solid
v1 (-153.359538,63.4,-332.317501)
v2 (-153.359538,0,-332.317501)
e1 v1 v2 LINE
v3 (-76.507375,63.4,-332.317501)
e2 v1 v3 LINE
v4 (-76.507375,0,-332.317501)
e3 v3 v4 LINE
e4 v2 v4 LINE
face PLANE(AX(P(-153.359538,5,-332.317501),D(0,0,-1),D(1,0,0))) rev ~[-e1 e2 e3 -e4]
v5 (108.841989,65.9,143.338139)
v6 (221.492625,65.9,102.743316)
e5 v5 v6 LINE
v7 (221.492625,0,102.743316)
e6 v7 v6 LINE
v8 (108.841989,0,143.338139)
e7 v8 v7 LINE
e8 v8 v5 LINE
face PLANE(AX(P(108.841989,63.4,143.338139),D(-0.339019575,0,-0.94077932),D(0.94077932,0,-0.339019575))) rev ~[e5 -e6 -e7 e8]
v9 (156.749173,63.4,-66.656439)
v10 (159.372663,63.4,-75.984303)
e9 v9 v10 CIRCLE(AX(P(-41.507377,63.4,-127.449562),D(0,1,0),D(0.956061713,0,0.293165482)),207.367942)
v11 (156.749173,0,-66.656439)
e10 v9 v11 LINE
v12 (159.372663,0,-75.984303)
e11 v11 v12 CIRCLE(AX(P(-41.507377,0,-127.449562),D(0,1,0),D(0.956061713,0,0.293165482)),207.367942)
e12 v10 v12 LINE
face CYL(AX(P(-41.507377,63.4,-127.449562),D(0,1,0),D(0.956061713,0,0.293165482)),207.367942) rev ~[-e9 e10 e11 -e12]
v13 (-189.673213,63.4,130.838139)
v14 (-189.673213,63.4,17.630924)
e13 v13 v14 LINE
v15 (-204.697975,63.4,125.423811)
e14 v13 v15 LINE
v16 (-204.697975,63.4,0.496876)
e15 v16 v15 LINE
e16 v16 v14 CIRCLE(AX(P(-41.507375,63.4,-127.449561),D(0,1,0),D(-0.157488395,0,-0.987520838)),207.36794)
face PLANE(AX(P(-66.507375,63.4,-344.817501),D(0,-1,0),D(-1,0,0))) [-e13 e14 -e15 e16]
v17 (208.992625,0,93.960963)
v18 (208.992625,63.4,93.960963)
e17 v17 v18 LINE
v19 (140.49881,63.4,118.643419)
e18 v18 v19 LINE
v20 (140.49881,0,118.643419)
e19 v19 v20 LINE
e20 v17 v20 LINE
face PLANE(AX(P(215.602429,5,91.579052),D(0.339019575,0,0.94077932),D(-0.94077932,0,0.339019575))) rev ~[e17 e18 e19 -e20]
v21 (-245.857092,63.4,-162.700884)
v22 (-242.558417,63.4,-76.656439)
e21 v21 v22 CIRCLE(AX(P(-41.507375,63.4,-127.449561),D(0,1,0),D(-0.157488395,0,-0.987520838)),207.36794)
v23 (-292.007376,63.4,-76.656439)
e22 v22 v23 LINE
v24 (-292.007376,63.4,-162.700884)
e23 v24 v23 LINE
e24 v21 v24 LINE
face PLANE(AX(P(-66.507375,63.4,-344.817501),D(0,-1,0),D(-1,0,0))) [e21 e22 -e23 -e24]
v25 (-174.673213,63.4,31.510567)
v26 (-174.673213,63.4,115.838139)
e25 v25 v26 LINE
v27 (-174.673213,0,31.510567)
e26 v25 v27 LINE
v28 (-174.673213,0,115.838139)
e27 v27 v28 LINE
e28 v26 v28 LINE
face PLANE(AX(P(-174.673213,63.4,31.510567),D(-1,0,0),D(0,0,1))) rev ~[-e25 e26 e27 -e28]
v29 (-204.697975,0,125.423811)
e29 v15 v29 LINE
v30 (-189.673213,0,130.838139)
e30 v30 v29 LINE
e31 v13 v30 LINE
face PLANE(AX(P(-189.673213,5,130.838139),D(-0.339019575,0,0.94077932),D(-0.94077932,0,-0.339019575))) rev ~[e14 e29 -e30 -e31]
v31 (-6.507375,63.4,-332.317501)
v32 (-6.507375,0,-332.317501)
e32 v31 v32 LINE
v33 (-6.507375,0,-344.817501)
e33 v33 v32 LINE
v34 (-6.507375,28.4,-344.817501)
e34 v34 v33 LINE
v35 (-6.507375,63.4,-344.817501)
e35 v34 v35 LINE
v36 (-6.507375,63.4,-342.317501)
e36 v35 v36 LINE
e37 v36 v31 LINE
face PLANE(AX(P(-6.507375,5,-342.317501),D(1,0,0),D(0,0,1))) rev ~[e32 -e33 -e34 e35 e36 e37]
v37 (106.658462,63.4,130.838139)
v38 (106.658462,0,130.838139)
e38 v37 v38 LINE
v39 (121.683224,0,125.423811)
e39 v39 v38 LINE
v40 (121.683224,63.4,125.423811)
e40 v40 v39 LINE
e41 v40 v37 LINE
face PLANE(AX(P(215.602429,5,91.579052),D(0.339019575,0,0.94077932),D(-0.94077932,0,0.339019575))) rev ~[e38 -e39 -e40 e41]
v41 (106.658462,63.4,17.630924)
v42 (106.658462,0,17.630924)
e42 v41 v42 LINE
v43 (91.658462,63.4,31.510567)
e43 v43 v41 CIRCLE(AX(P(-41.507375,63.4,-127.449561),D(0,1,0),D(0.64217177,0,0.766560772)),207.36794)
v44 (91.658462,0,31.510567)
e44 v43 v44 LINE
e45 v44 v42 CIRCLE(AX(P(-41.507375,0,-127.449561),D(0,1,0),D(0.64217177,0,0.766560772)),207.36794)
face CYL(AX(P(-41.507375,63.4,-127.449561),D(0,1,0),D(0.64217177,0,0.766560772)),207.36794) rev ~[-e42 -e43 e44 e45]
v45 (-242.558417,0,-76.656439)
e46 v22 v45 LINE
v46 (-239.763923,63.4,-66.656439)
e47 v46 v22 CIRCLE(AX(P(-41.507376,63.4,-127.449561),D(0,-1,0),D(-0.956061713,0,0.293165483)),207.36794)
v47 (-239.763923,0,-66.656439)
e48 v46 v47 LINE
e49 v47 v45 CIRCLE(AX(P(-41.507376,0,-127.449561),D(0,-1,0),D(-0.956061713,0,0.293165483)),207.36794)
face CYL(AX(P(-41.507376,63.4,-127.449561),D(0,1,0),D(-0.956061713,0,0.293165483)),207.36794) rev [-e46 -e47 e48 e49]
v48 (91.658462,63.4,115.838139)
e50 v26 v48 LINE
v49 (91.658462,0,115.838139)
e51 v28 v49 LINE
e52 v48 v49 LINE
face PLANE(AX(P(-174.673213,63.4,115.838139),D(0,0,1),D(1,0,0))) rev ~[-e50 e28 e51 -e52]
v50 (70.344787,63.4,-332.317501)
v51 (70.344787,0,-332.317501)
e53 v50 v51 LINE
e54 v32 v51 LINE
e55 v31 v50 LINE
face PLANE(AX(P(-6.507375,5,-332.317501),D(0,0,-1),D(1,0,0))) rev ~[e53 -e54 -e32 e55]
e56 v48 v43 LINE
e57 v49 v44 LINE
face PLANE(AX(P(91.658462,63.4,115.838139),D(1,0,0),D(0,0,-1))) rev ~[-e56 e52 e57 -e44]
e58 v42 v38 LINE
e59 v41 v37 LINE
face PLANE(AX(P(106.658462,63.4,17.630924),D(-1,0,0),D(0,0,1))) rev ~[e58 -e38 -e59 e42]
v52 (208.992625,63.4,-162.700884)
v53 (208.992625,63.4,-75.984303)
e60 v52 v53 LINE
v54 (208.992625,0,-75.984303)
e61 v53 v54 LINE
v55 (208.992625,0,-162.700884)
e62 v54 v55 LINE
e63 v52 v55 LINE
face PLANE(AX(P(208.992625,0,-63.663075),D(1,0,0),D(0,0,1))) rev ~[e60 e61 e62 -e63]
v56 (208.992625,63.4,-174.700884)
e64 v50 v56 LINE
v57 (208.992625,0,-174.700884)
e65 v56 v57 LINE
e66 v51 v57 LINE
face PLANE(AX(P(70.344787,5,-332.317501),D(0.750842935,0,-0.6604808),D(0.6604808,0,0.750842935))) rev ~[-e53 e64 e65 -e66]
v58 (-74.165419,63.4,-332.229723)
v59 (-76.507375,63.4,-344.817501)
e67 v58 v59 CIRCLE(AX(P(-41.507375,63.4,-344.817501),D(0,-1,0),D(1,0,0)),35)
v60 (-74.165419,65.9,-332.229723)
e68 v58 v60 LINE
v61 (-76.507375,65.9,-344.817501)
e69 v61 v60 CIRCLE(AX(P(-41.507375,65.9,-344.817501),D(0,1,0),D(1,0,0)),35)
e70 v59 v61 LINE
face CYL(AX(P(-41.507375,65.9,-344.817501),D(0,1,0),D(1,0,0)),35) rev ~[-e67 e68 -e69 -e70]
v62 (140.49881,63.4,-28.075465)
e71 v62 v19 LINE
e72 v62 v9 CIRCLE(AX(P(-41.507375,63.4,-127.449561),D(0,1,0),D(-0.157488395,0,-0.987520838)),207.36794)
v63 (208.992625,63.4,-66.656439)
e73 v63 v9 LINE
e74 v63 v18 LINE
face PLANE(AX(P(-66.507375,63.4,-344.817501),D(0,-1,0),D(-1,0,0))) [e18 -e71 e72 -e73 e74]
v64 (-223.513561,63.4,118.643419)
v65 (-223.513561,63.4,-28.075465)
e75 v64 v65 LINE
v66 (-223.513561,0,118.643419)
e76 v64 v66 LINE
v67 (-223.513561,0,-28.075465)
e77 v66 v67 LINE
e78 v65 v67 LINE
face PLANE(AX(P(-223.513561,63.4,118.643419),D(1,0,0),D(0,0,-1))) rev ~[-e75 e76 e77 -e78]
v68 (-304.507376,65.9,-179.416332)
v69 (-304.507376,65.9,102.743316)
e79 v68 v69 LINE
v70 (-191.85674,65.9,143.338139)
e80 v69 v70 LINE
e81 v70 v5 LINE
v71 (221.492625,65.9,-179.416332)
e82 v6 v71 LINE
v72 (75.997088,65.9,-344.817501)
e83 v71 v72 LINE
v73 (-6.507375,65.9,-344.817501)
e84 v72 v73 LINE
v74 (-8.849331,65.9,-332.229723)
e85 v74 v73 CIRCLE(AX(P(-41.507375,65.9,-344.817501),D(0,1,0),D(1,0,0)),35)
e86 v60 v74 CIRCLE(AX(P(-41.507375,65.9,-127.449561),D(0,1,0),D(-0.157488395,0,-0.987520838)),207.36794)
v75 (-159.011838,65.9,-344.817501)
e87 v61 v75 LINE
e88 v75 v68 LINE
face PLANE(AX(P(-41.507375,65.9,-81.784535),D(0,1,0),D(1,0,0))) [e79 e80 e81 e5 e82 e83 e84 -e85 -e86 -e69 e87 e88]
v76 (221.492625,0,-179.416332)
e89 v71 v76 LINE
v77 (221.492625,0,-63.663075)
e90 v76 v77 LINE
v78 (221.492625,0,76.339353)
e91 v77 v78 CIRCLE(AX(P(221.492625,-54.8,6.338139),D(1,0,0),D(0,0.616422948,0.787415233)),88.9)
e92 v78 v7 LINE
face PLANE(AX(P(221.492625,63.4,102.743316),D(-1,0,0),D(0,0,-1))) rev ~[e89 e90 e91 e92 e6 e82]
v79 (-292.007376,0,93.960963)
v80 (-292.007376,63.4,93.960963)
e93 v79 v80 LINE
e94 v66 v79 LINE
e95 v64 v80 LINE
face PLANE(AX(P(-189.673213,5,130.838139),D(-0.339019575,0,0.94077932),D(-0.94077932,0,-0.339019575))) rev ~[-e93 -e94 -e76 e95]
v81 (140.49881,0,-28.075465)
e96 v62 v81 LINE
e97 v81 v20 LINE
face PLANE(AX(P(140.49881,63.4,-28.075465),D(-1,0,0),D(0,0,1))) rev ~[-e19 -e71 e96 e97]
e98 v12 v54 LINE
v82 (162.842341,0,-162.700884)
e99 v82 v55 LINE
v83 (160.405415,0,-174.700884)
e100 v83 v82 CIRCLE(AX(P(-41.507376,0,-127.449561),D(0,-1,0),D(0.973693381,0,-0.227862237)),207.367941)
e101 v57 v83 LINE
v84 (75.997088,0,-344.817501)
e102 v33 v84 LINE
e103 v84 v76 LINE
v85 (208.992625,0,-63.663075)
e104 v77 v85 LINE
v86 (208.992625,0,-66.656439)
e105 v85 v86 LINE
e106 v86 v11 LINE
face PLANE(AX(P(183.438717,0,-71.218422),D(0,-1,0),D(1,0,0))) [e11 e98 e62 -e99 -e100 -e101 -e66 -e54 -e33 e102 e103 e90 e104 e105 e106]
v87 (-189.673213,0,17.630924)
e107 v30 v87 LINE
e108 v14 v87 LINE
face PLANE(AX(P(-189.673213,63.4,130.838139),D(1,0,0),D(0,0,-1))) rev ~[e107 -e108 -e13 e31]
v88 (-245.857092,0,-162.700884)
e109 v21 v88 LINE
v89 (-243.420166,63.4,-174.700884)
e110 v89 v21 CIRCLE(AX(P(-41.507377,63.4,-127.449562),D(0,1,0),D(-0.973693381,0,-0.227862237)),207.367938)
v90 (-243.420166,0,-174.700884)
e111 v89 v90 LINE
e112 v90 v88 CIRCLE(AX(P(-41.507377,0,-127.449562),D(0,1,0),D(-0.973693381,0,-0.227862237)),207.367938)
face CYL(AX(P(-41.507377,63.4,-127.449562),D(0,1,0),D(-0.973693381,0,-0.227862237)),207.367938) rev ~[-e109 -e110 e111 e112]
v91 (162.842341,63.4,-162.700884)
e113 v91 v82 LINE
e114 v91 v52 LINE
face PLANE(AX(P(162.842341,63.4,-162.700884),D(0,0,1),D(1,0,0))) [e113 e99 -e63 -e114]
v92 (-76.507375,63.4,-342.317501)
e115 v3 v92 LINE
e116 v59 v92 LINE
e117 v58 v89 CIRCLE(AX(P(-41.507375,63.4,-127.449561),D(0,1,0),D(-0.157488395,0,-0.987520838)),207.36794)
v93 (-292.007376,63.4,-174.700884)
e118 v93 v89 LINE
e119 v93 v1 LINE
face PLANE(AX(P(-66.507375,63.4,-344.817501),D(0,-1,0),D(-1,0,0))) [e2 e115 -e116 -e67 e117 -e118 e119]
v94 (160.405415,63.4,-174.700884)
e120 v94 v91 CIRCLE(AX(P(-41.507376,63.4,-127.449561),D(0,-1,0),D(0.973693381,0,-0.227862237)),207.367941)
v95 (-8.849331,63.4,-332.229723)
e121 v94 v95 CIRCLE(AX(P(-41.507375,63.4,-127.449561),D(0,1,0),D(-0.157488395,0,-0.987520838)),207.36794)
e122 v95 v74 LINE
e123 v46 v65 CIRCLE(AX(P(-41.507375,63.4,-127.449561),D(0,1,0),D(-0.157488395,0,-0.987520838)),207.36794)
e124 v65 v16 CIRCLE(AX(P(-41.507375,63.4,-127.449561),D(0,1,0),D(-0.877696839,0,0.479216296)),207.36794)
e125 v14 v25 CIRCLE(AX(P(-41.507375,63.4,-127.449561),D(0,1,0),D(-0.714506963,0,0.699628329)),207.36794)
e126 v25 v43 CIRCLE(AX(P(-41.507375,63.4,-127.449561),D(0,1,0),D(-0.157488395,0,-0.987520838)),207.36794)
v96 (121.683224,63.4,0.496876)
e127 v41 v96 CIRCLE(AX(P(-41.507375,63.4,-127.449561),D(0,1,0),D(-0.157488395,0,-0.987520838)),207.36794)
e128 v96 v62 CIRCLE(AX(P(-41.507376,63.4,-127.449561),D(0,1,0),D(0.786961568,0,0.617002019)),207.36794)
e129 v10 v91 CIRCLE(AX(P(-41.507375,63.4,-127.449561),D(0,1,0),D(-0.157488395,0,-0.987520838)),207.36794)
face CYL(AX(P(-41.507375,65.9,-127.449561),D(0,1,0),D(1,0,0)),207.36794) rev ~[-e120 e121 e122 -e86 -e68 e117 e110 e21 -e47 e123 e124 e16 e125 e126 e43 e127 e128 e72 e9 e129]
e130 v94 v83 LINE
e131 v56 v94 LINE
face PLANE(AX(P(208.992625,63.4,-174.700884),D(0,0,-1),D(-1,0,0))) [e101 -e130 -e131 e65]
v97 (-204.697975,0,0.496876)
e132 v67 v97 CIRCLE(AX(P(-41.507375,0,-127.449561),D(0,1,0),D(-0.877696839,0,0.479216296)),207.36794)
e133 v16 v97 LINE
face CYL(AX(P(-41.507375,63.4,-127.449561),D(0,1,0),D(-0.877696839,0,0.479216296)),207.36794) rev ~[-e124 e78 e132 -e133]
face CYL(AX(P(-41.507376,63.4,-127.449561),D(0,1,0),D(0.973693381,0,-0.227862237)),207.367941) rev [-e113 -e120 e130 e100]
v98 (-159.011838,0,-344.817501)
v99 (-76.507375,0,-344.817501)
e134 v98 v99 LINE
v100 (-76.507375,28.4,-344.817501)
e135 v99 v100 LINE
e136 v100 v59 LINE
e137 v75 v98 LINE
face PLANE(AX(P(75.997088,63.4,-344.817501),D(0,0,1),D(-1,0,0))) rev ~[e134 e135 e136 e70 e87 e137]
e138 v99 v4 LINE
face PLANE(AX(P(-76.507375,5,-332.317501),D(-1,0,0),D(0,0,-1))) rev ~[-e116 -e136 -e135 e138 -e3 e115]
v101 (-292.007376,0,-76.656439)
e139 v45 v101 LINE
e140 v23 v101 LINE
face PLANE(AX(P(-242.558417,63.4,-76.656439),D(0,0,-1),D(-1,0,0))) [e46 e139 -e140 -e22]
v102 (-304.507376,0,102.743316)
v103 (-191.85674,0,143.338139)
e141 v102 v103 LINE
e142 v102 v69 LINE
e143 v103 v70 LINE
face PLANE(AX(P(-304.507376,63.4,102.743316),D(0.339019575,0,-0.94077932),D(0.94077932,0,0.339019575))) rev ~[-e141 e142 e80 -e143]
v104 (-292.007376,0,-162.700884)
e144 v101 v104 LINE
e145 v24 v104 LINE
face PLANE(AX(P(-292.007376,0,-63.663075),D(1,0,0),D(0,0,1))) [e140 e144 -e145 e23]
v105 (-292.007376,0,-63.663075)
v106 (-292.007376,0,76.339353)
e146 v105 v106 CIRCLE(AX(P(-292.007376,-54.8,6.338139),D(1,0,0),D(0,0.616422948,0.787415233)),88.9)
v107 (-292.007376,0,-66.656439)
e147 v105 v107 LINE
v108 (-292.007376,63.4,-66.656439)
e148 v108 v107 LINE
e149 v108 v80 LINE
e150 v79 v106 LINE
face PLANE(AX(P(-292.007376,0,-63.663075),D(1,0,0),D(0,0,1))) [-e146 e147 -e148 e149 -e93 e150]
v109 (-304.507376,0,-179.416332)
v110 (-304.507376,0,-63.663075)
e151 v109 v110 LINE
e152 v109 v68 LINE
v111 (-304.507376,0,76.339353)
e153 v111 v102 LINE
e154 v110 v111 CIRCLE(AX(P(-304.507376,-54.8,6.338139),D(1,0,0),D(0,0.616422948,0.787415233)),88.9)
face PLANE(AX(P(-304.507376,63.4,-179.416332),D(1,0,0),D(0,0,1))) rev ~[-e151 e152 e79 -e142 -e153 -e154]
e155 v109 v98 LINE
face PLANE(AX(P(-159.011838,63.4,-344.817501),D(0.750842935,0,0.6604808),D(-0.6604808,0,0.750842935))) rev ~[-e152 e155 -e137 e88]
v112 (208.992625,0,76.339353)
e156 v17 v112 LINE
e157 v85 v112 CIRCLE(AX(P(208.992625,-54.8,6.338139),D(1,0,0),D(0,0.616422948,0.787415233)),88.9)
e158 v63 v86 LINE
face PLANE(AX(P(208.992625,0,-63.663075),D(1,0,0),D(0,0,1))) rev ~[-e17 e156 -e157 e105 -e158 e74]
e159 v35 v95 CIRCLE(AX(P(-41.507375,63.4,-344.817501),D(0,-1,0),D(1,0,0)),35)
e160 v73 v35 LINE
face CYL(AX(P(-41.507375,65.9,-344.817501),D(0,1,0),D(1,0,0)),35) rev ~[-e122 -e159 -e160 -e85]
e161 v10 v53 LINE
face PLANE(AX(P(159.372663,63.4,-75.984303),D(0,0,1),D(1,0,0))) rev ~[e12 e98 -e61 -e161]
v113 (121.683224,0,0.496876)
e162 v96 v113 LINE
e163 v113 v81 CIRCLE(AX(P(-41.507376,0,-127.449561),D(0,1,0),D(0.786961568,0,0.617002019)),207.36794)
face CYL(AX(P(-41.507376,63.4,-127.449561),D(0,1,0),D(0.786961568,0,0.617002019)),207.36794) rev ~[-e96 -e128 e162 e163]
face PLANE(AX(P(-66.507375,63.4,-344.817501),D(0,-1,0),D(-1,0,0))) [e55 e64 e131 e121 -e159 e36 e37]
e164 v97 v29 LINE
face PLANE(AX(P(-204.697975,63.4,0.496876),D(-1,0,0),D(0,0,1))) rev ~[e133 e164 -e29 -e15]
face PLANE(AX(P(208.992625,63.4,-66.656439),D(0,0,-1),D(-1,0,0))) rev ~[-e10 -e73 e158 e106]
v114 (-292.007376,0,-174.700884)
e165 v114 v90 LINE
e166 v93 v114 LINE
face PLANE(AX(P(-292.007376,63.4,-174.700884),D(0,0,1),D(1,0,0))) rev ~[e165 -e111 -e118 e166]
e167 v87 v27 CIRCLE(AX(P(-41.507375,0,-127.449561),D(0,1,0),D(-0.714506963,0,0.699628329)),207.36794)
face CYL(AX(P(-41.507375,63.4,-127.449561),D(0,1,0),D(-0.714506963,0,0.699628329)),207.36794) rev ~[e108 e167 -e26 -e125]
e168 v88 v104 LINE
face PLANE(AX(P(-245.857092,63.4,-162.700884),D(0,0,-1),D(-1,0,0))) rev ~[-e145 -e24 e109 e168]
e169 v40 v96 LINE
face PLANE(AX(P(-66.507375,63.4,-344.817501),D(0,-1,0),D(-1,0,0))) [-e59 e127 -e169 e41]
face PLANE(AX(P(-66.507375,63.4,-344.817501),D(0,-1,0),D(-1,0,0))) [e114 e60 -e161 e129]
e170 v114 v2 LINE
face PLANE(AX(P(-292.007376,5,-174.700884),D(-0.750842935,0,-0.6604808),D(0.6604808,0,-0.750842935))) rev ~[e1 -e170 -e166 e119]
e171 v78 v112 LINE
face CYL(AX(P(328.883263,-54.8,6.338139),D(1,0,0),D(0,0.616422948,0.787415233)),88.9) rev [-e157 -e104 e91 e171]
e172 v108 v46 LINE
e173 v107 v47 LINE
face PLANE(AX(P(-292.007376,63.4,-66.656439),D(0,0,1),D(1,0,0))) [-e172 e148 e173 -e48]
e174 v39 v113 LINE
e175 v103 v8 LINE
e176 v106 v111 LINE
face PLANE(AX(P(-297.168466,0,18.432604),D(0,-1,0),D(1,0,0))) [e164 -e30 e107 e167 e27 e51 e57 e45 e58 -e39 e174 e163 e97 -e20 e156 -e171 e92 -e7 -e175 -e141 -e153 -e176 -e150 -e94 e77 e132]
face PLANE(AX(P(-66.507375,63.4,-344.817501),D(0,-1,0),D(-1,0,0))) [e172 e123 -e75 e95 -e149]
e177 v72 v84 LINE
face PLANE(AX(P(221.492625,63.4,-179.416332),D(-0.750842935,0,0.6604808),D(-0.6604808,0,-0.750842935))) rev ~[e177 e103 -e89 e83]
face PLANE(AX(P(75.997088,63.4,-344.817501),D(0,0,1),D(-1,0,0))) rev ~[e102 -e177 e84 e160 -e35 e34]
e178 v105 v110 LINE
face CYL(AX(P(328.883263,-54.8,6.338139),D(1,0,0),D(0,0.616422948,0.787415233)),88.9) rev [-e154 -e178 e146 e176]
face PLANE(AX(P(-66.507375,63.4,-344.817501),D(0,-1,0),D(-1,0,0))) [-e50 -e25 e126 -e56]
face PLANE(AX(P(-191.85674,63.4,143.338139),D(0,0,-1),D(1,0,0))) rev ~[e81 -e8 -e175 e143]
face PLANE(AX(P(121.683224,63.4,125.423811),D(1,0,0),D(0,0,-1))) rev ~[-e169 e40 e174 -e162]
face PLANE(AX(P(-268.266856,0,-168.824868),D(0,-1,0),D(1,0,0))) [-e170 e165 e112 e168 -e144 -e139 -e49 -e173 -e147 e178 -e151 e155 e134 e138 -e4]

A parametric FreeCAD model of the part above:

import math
import FreeCAD as App
import Part
import Sketcher


def add_polygon(sketch, points):
    """Adds a closed chain of lines whose ends are joined by coincident constraints."""
    first, n = sketch.GeometryCount, len(points)
    for a, b in zip(points, points[1:] + points[:1]):
        sketch.addGeometry(Part.LineSegment(App.Vector(*a, 0), App.Vector(*b, 0)), False)
    for i in range(n):
        sketch.addConstraint(Sketcher.Constraint("Coincident", first + i, 2, first + (i + 1) % n, 1))

doc = App.newDocument("Part")
body = doc.addObject("PartDesign::Body", "Body")

sketch1 = body.newObject("Sketcher::SketchObject", "Sketch")
sketch1.AttachmentSupport = (doc.getObject("XZ_Plane"), [""])
sketch1.MapMode = "FlatFace"
add_polygon(sketch1, [(-304.5, -63.7), (-304.5, 102.7), (-191.9, 143.3), (108.8, 143.3), (221.5, 102.7), (221.5, -63.7), (219, -63.7), (219, 101), (108.4, 140.8), (-191.4, 140.8), (-302, 101), (-302, -63.7)])
sketch1.addConstraint([
    Sketcher.Constraint("Vertical", 0),
    Sketcher.Constraint("Horizontal", 2),
    Sketcher.Constraint("Vertical", 4),
    Sketcher.Constraint("Horizontal", 5),
    Sketcher.Constraint("Vertical", 6),
    Sketcher.Constraint("Horizontal", 8),
    Sketcher.Constraint("Vertical", 10),
    Sketcher.Constraint("Horizontal", 11),
    Sketcher.Constraint("Parallel", 3, 7),
    Sketcher.Constraint("Parallel", 1, 9),
    Sketcher.Constraint("Horizontal", 0, 2, 3, 2),
    Sketcher.Constraint("Horizontal", 6, 2, 9, 2),
    Sketcher.Constraint("Horizontal", 5, 2, 10, 2),
    Sketcher.Constraint("Equal", 5, 11),
    Sketcher.Constraint("Equal", 1, 3),
    Sketcher.Constraint("DistanceX", 5, 2, 5, 1, 2.5),
    Sketcher.Constraint("DistanceX", 0, 2, 3, 2, 526.0),
    Sketcher.Constraint("DistanceY", 7, 2, 2, 2, 2.5),
    Sketcher.Constraint("DistanceX", 2, 1, 2, 2, 300.698729),
    Sketcher.Constraint("DistanceY", 0, 1, 0, 2, 166.406391),
    Sketcher.Constraint("DistanceY", 6, 1, 6, 2, 164.64992),
    Sketcher.Constraint("Distance", 1, 119.741828),
    Sketcher.Constraint("DistanceX", 1, 2, -1, 1, 191.85674),
    Sketcher.Constraint("DistanceY", -1, 1, 1, 2, 143.338139),
])
pad1 = body.newObject("PartDesign::Pad", "Pad")
pad1.Profile = sketch1
pad1.Length = 63.4
pad1.Reversed = True
body2 = doc.addObject("PartDesign::Body", "Body001")

sketch2 = body2.newObject("Sketcher::SketchObject", "Sketch001")
sketch2.AttachmentSupport = (doc.getObject("XZ_Plane001"), [""])
sketch2.MapMode = "FlatFace"
add_polygon(sketch2, [(-159, -344.8), (-304.5, -179.4), (-304.5, -63.7), (-302, -63.7), (-302, -178.5), (-157.9, -342.3), (74.9, -342.3), (219, -178.5), (219, -63.7), (221.5, -63.7), (221.5, -179.4), (76, -344.8)])
sketch2.addConstraint([
    Sketcher.Constraint("Vertical", 1),
    Sketcher.Constraint("Horizontal", 2),
    Sketcher.Constraint("Vertical", 3),
    Sketcher.Constraint("Horizontal", 5),
    Sketcher.Constraint("Vertical", 7),
    Sketcher.Constraint("Horizontal", 8),
    Sketcher.Constraint("Vertical", 9),
    Sketcher.Constraint("Horizontal", 11),
    Sketcher.Constraint("Parallel", 0, 4),
    Sketcher.Constraint("Parallel", 6, 10),
    Sketcher.Constraint("Horizontal", 3, 2, 6, 2),
    Sketcher.Constraint("Horizontal", 2, 2, 7, 2),
    Sketcher.Constraint("Horizontal", 0, 2, 9, 2),
    Sketcher.Constraint("Equal", 2, 8),
    Sketcher.Constraint("Equal", 4, 6),
    Sketcher.Constraint("DistanceX", 2, 1, 2, 2, 2.5),
    Sketcher.Constraint("DistanceX", 3, 2, 6, 2, 521.0),
    Sketcher.Constraint("DistanceY", 10, 2, 5, 2, 2.5),
    Sketcher.Constraint("DistanceY", 4, 2, -1, 1, 342.317501),
    Sketcher.Constraint("DistanceX", 5, 1, 5, 2, 232.748006),
    Sketcher.Constraint("DistanceX", 11, 2, 11, 1, 235.008926),
    Sketcher.Constraint("DistanceY", 1, 1, 1, 2, 115.753257),
    Sketcher.Constraint("DistanceX", 4, 2, -1, 1, 157.881378),
    Sketcher.Constraint("DistanceY", 4, 2, 3, 2, 163.844258),
])
pad2 = body2.newObject("PartDesign::Pad", "Pad001")
pad2.Profile = sketch2
pad2.Length = 63.4
pad2.Reversed = True
doc.recompute()

boolean = body.newObject("PartDesign::Boolean", "Boolean")
boolean.Type = "Fuse"
boolean.addObjects([body2])

sketch3 = body.newObject("Sketcher::SketchObject", "Sketch002")
sketch3.AttachmentSupport = (doc.getObject("XZ_Plane"), [""])
sketch3.MapMode = "FlatFace"
add_polygon(sketch3, [(209, -175), (209, -64), (219, -64), (219, -178), (75, -342), (-158, -342), (-302, -178), (-302, -64), (-292, -64), (-292, -175), (-153, -332), (70, -332)])
add_polygon(sketch3, [(216, 92), (107, 131), (-190, 131), (-299, 92), (-302, 101), (-191, 141), (108, 141), (219, 101)])
sketch3.addConstraint([
    Sketcher.Constraint("Vertical", 0),
    Sketcher.Constraint("Horizontal", 1),
    Sketcher.Constraint("Vertical", 2),
    Sketcher.Constraint("Horizontal", 4),
    Sketcher.Constraint("Vertical", 6),
    Sketcher.Constraint("Horizontal", 7),
    Sketcher.Constraint("Vertical", 8),
    Sketcher.Constraint("Horizontal", 10),
    Sketcher.Constraint("Horizontal", 13),
    Sketcher.Constraint("Horizontal", 17),
    Sketcher.Constraint("Parallel", 5, 9),
    Sketcher.Constraint("Parallel", 3, 11),
    Sketcher.Constraint("Perpendicular", 14, 15),
    Sketcher.Constraint("Perpendicular", 15, 16),
    Sketcher.Constraint("Parallel", 12, 18),
    Sketcher.Constraint("Perpendicular", 18, 19),
    Sketcher.Constraint("Horizontal", 2, 2, 5, 2),
    Sketcher.Constraint("Horizontal", 1, 2, 6, 2),
    Sketcher.Constraint("Horizontal", 8, 2, 11, 2),
    Sketcher.Constraint("Horizontal", 15, 2, 18, 2),
    Sketcher.Constraint("Horizontal", 14, 2, 19, 2),
    Sketcher.Constraint("Vertical", 6, 2, 15, 2),
    Sketcher.Constraint("Vertical", 2, 2, 18, 2),
    Sketcher.Constraint("Equal", 1, 7),
    Sketcher.Constraint("Equal", 3, 5),
    Sketcher.Constraint("Equal", 12, 14),
    Sketcher.Constraint("DistanceX", 1, 1, 1, 2, 10.0),
    Sketcher.Constraint("Distance", 15, 10.0),
    Sketcher.Constraint("DistanceX", 5, 2, 2, 2, 521.0),
    Sketcher.Constraint("DistanceY", 4, 2, 9, 2, 10.0),
    Sketcher.Constraint("DistanceY", 13, 2, 16, 2, 10.0),
    Sketcher.Constraint("DistanceY", 0, 1, 0, 2, 111.037809),
    Sketcher.Constraint("DistanceY", 3, 2, -1, 1, 342.317501),
    Sketcher.Constraint("Distance", 9, 209.919558),
    Sketcher.Constraint("Distance", 12, 115.801831),
    Sketcher.Constraint("DistanceX", 4, 2, 4, 1, 232.748006),
    Sketcher.Constraint("DistanceX", 10, 1, 10, 2, 223.704325),
    Sketcher.Constraint("DistanceX", 13, 2, 13, 1, 296.331674),
    Sketcher.Constraint("DistanceX", 4, 2, -1, 1, 157.881378),
    Sketcher.Constraint("DistanceY", -1, 1, 12, 2, 130.838139),
])
pad3 = body.newObject("PartDesign::Pad", "Pad002")
pad3.Profile = sketch3
pad3.Length = 5
pad3.Reversed = True

sketch4 = body.newObject("Sketcher::SketchObject", "Sketch003")
sketch4.AttachmentSupport = (doc.getObject("XZ_Plane"), [""])
sketch4.MapMode = "FlatFace"
sketch4.AttachmentOffset = App.Placement(App.Vector(0, 0, -63.4), App.Rotation())
add_polygon(sketch4, [(-159, -345), (-305, -179), (-305, 103), (-192, 143), (109, 143), (221, 103), (221, -179), (76, -345)])
sketch4.addConstraint([
    Sketcher.Constraint("Vertical", 1),
    Sketcher.Constraint("Horizontal", 3),
    Sketcher.Constraint("Vertical", 5),
    Sketcher.Constraint("Horizontal", 7),
    Sketcher.Constraint("Horizontal", 1, 2, 4, 2),
    Sketcher.Constraint("Horizontal", 0, 2, 5, 2),
    Sketcher.Constraint("Equal", 2, 4),
    Sketcher.Constraint("Equal", 0, 6),
    Sketcher.Constraint("DistanceX", 1, 2, 4, 2, 526.0),
    Sketcher.Constraint("DistanceX", 3, 1, 3, 2, 300.698729),
    Sketcher.Constraint("DistanceY", 1, 1, 1, 2, 282.159648),
    Sketcher.Constraint("DistanceY", 6, 2, -1, 1, 344.817501),
    Sketcher.Constraint("DistanceX", 6, 2, 3, 2, 32.844901),
    Sketcher.Constraint("Distance", 2, 119.741828),
    Sketcher.Constraint("DistanceX", 2, 2, -1, 1, 191.85674),
    Sketcher.Constraint("DistanceY", -1, 1, 2, 2, 143.338139),
])
pad4 = body.newObject("PartDesign::Pad", "Pad003")
pad4.Profile = sketch4
pad4.Length = 2.5
pad4.Reversed = True

sketch5 = body.newObject("Sketcher::SketchObject", "Sketch004")
sketch5.AttachmentSupport = (doc.getObject("XY_Plane"), [""])
sketch5.MapMode = "FlatFace"
sketch5.AttachmentOffset = App.Placement(App.Vector(0, 0, -344.817501), App.Rotation())
add_polygon(sketch5, [(-7, 28), (-7, 0), (-77, 0), (-77, 28), (-67, 28), (-67, 63), (-17, 63), (-17, 28)])
sketch5.addConstraint([
    Sketcher.Constraint("Vertical", 0),
    Sketcher.Constraint("Horizontal", 1),
    Sketcher.Constraint("Vertical", 2),
    Sketcher.Constraint("Horizontal", 3),
    Sketcher.Constraint("Vertical", 4),
    Sketcher.Constraint("Horizontal", 5),
    Sketcher.Constraint("Vertical", 6),
    Sketcher.Constraint("Horizontal", 7),
    Sketcher.Constraint("PointOnObject", 0, 2, -1),
    Sketcher.Constraint("Horizontal", 3, 2, 6, 2),
    Sketcher.Constraint("Equal", 3, 7),
    Sketcher.Constraint("DistanceX", 1, 2, 1, 1, 70.0),
    Sketcher.Constraint("DistanceX", 3, 1, 3, 2, 10.0),
    Sketcher.Constraint("DistanceY", 4, 1, 4, 2, 35.0),
    Sketcher.Constraint("DistanceY", 0, 2, 0, 1, 28.4),
    Sketcher.Constraint("DistanceX", 0, 2, -1, 1, 6.507375),
])
pocket1 = body.newObject("PartDesign::Pocket", "Pocket")
pocket1.Profile = sketch5
pocket1.Length = 12.5
pocket1.Reversed = True

sketch6 = body.newObject("Sketcher::SketchObject", "Sketch005")
sketch6.AttachmentSupport = (doc.getObject("XZ_Plane"), [""])
sketch6.MapMode = "FlatFace"
sketch6.AttachmentOffset = App.Placement(App.Vector(0, 0, -65.9), App.Rotation())
sketch6.addGeometry(Part.Circle(App.Vector(-42, -345, 0), App.Vector(0, 0, 1), 35), False)
sketch6.addConstraint([
    Sketcher.Constraint("Diameter", 0, 70.0),
    Sketcher.Constraint("DistanceY", 0, 3, -1, 1, 344.817501),
    Sketcher.Constraint("DistanceX", 0, 3, -1, 1, 41.507375),
])
pocket2 = body.newObject("PartDesign::Pocket", "Pocket001")
pocket2.Profile = sketch6
pocket2.Length = 2.5
pocket2.Reversed = True

sketch7 = body.newObject("Sketcher::SketchObject", "Sketch006")
sketch7.AttachmentSupport = (doc.getObject("XY_Plane"), [""])
sketch7.MapMode = "FlatFace"
sketch7.AttachmentOffset = App.Placement(App.Vector(0, 0, -344.817501), App.Rotation())
add_polygon(sketch7, [(-7, 63), (-7, 28), (-17, 28), (-17, 63)])
add_polygon(sketch7, [(-67, 63), (-67, 28), (-77, 28), (-77, 63)])
sketch7.addConstraint([
    Sketcher.Constraint("Vertical", 0),
    Sketcher.Constraint("Horizontal", 1),
    Sketcher.Constraint("Vertical", 2),
    Sketcher.Constraint("Horizontal", 3),
    Sketcher.Constraint("Vertical", 4),
    Sketcher.Constraint("Horizontal", 5),
    Sketcher.Constraint("Vertical", 6),
    Sketcher.Constraint("Horizontal", 7),
    Sketcher.Constraint("Horizontal", 1, 2, 4, 2),
    Sketcher.Constraint("Horizontal", 3, 2, 6, 2),
    Sketcher.Constraint("Equal", 3, 5),
    Sketcher.Constraint("DistanceX", 1, 2, 1, 1, 10.0),
    Sketcher.Constraint("DistanceY", 0, 2, 0, 1, 35.0),
    Sketcher.Constraint("DistanceX", 4, 2, 1, 2, 50.0),
    Sketcher.Constraint("DistanceY", -1, 1, 0, 2, 28.4),
    Sketcher.Constraint("DistanceX", 0, 2, -1, 1, 6.507375),
])
pocket3 = body.newObject("PartDesign::Pocket", "Pocket002")
pocket3.Profile = sketch7
pocket3.Length = 2.5
pocket3.Reversed = True

sketch8 = body.newObject("Sketcher::SketchObject", "Sketch007")
sketch8.AttachmentSupport = (doc.getObject("XZ_Plane"), [""])
sketch8.MapMode = "FlatFace"
sketch8.AttachmentOffset = App.Placement(App.Vector(0, 0, -5), App.Rotation())
add_polygon(sketch8, [(-77, -332), (-77, -342), (-158, -342), (-302, -178), (-302, -64), (-292, -64), (-292, -175), (-153, -332)])
add_polygon(sketch8, [(209, -64), (219, -64), (219, -178), (75, -342), (-7, -342), (-7, -332), (70, -332), (209, -175)])
add_polygon(sketch8, [(108, 141), (219, 101), (216, 92), (107, 131), (-190, 131), (-299, 92), (-302, 101), (-191, 141)])
sketch8.addConstraint([
    Sketcher.Constraint("Vertical", 0),
    Sketcher.Constraint("Horizontal", 1),
    Sketcher.Constraint("Vertical", 3),
    Sketcher.Constraint("Horizontal", 4),
    Sketcher.Constraint("Vertical", 5),
    Sketcher.Constraint("Horizontal", 7),
    Sketcher.Constraint("Horizontal", 8),
    Sketcher.Constraint("Vertical", 9),
    Sketcher.Constraint("Horizontal", 11),
    Sketcher.Constraint("Vertical", 12),
    Sketcher.Constraint("Horizontal", 13),
    Sketcher.Constraint("Vertical", 15),
    Sketcher.Constraint("Horizontal", 19),
    Sketcher.Constraint("Horizontal", 23),
    Sketcher.Constraint("Parallel", 2, 6),
    Sketcher.Constraint("Parallel", 10, 14),
    Sketcher.Constraint("Perpendicular", 16, 17),
    Sketcher.Constraint("Perpendicular", 17, 18),
    Sketcher.Constraint("Perpendicular", 20, 21),
    Sketcher.Constraint("Perpendicular", 21, 22),
    Sketcher.Constraint("Horizontal", 4, 2, 8, 2),
    Sketcher.Constraint("Horizontal", 2, 2, 9, 2),
    Sketcher.Constraint("Horizontal", 1, 2, 10, 2),
    Sketcher.Constraint("Horizontal", 7, 2, 12, 2),
    Sketcher.Constraint("Horizontal", 5, 2, 14, 2),
    Sketcher.Constraint("Horizontal", 17, 2, 20, 2),
    Sketcher.Constraint("Horizontal", 16, 2, 21, 2),
    Sketcher.Constraint("Vertical", 9, 2, 16, 2),
    Sketcher.Constraint("Vertical", 3, 2, 21, 2),
    Sketcher.Constraint("Equal", 4, 8),
    Sketcher.Constraint("Equal", 1, 11),
    Sketcher.Constraint("Equal", 7, 13),
    Sketcher.Constraint("Equal", 8, 0),
    Sketcher.Constraint("Equal", 18, 20),
    Sketcher.Constraint("DistanceX", 4, 1, 4, 2, 10.0),
    Sketcher.Constraint("Distance", 17, 10.0),
    Sketcher.Constraint("DistanceX", 4, 2, 8, 2, 511.0),
    Sketcher.Constraint("DistanceX", 0, 2, 11, 2, 70.0),
    Sketcher.Constraint("DistanceY", 19, 2, 22, 2, 10.0),
    Sketcher.Constraint("DistanceY", 5, 2, 5, 1, 111.037809),
    Sketcher.Constraint("DistanceY", 0, 2, -1, 1, 342.317501),
    Sketcher.Constraint("Distance", 6, 209.919558),
    Sketcher.Constraint("Distance", 18, 115.801831),
    Sketcher.Constraint("DistanceX", 1, 2, 1, 1, 81.374003),
    Sketcher.Constraint("DistanceX", 7, 1, 7, 2, 76.852162),
    Sketcher.Constraint("DistanceX", 19, 2, 19, 1, 296.331674),
    Sketcher.Constraint("DistanceX", 1, 2, -1, 1, 157.881378),
    Sketcher.Constraint("DistanceY", -1, 1, 17, 2, 91.579052),
])
pad5 = body.newObject("PartDesign::Pad", "Pad004")
pad5.Profile = sketch8
pad5.Length = 58.4
pad5.Reversed = True

sketch9 = body.newObject("Sketcher::SketchObject", "Sketch008")
sketch9.AttachmentSupport = (doc.getObject("XZ_Plane"), [""])
sketch9.MapMode = "FlatFace"
add_polygon(sketch9, [(-302, 101), (-302, -64), (-292, -64), (-292, 94), (-299, 92)])
add_polygon(sketch9, [(219, -64), (219, 101), (216, 92), (209, 94), (209, -64)])
sketch9.addConstraint([
    Sketcher.Constraint("Vertical", 0),
    Sketcher.Constraint("Horizontal", 1),
    Sketcher.Constraint("Vertical", 2),
    Sketcher.Constraint("Vertical", 5),
    Sketcher.Constraint("Vertical", 8),
    Sketcher.Constraint("Horizontal", 9),
    Sketcher.Constraint("Perpendicular", 3, 4),
    Sketcher.Constraint("Perpendicular", 6, 7),
    Sketcher.Constraint("Horizontal", 4, 2, 5, 2),
    Sketcher.Constraint("Horizontal", 3, 2, 6, 2),
    Sketcher.Constraint("Horizontal", 2, 2, 7, 2),
    Sketcher.Constraint("Horizontal", 1, 2, 8, 2),
    Sketcher.Constraint("Equal", 1, 9),
    Sketcher.Constraint("DistanceX", 1, 1, 1, 2, 10.0),
    Sketcher.Constraint("Distance", 4, 10.0),
    Sketcher.Constraint("DistanceX", 2, 2, 5, 2, 511.0),
    Sketcher.Constraint("DistanceY", 0, 2, 0, 1, 164.64992),
    Sketcher.Constraint("DistanceY", 2, 1, 2, 2, 157.624038),
    Sketcher.Constraint("DistanceX", 3, 2, -1, 1, 298.61718),
    Sketcher.Constraint("DistanceY", -1, 1, 3, 2, 91.579052),
])
pad6 = body.newObject("PartDesign::Pad", "Pad005")
pad6.Profile = sketch9
pad6.Length = 63.4
pad6.Reversed = True

sketch10 = body.newObject("Sketcher::SketchObject", "Sketch009")
sketch10.AttachmentSupport = (doc.getObject("YZ_Plane"), [""])
sketch10.MapMode = "FlatFace"
sketch10.AttachmentOffset = App.Placement(App.Vector(0, 0, -304.507376), App.Rotation())
sketch10.addGeometry([
    Part.ArcOfCircle(Part.Circle(App.Vector(-55, 6, 0), App.Vector(0, 0, 1), 89), math.radians(90), math.radians(308)),
    Part.ArcOfCircle(Part.Circle(App.Vector(-55, 6, 0), App.Vector(0, 0, 1), 89), math.radians(52), math.radians(90)),
    Part.ArcOfCircle(Part.Circle(App.Vector(-55, 6, 0), App.Vector(0, 0, 1), 89), math.radians(-52), math.radians(52)),
], False)
sketch10.addConstraint([
    Sketcher.Constraint("Tangent", 0, 1, 1, 2),
    Sketcher.Constraint("Tangent", 1, 1, 2, 2),
    Sketcher.Constraint("Tangent", 2, 1, 0, 2),
    Sketcher.Constraint("PointOnObject", 1, 1, -2),
    Sketcher.Constraint("PointOnObject", 2, 1, -2),
    Sketcher.Constraint("Vertical", 2, 3, 0, 1),
    Sketcher.Constraint("Radius", 0, 88.9),
    Sketcher.Constraint("DistanceX", 0, 3, -1, 1, 54.8),
    Sketcher.Constraint("DistanceY", -1, 1, 0, 3, 6.338139),
])
pocket4 = body.newObject("PartDesign::Pocket", "Pocket003")
pocket4.Profile = sketch10
pocket4.Type = "ThroughAll"
pocket4.Midplane = True

sketch11 = body.newObject("Sketcher::SketchObject", "Sketch010")
sketch11.AttachmentSupport = (doc.getObject("XZ_Plane"), [""])
sketch11.MapMode = "FlatFace"
sketch11.AttachmentOffset = App.Placement(App.Vector(0, 0, -65.9), App.Rotation())
sketch11.addGeometry(Part.Circle(App.Vector(-42, -127, 0), App.Vector(0, 0, 1), 207), False)
sketch11.addConstraint([
    Sketcher.Constraint("Diameter", 0, 414.73588),
    Sketcher.Constraint("DistanceY", 0, 3, -1, 1, 127.449561),
    Sketcher.Constraint("DistanceX", 0, 3, -1, 1, 41.507375),
])
pocket5 = body.newObject("PartDesign::Pocket", "Pocket004")
pocket5.Profile = sketch11
pocket5.Type = "ThroughAll"
pocket5.Reversed = True

sketch12 = body.newObject("Sketcher::SketchObject", "Sketch011")
sketch12.AttachmentSupport = (doc.getObject("XZ_Plane"), [""])
sketch12.MapMode = "FlatFace"
sketch12.AttachmentOffset = App.Placement(App.Vector(0, 0, -63.4), App.Rotation())
sketch12.addGeometry([
    Part.LineSegment(App.Vector(-292, -175, 0), App.Vector(-243, -175, 0)),
    Part.ArcOfCircle(Part.Circle(App.Vector(-42, -127, 0), App.Vector(0, 0, 1), 207), math.radians(-170.21), math.radians(-166.83)),
    Part.LineSegment(App.Vector(-246, -163, 0), App.Vector(-292, -163, 0)),
    Part.LineSegment(App.Vector(-292, -163, 0), App.Vector(-292, -175, 0)),
    Part.LineSegment(App.Vector(-240, -67, 0), App.Vector(-292, -67, 0)),
    Part.LineSegment(App.Vector(-292, -67, 0), App.Vector(-292, -77, 0)),
    Part.LineSegment(App.Vector(-292, -77, 0), App.Vector(-243, -77, 0)),
    Part.ArcOfCircle(Part.Circle(App.Vector(-42, -127, 0), App.Vector(0, 0, 1), 207), math.radians(162.95), math.radians(165.82)),
    Part.LineSegment(App.Vector(-224, 119, 0), App.Vector(-224, -28, 0)),
    Part.ArcOfCircle(Part.Circle(App.Vector(-42, -127, 0), App.Vector(0, 0, 1), 207), math.radians(141.9), math.radians(151.37)),
    Part.LineSegment(App.Vector(-205, 0, 0), App.Vector(-205, 125, 0)),
    Part.LineSegment(App.Vector(-205, 125, 0), App.Vector(-224, 119, 0)),
    Part.LineSegment(App.Vector(-190, 131, 0), App.Vector(-190, 18, 0)),
    Part.ArcOfCircle(Part.Circle(App.Vector(-42, -127, 0), App.Vector(0, 0, 1), 207), math.radians(129.95), math.radians(135.6)),
    Part.LineSegment(App.Vector(-175, 32, 0), App.Vector(-175, 116, 0)),
    Part.LineSegment(App.Vector(-175, 116, 0), App.Vector(92, 116, 0)),
    Part.LineSegment(App.Vector(92, 116, 0), App.Vector(92, 32, 0)),
    Part.ArcOfCircle(Part.Circle(App.Vector(-42, -127, 0), App.Vector(0, 0, 1), 207), math.radians(44.4), math.radians(50.05)),
    Part.LineSegment(App.Vector(107, 18, 0), App.Vector(107, 131, 0)),
    Part.LineSegment(App.Vector(107, 131, 0), App.Vector(-190, 131, 0)),
    Part.LineSegment(App.Vector(122, 125, 0), App.Vector(122, 0, 0)),
    Part.ArcOfCircle(Part.Circle(App.Vector(-42, -127, 0), App.Vector(0, 0, 1), 207), math.radians(28.63), math.radians(38.1)),
    Part.LineSegment(App.Vector(140, -28, 0), App.Vector(140, 119, 0)),
    Part.LineSegment(App.Vector(140, 119, 0), App.Vector(122, 125, 0)),
    Part.LineSegment(App.Vector(209, -67, 0), App.Vector(157, -67, 0)),
    Part.ArcOfCircle(Part.Circle(App.Vector(-42, -127, 0), App.Vector(0, 0, 1), 207), math.radians(14.37), math.radians(17.05)),
    Part.LineSegment(App.Vector(159, -76, 0), App.Vector(209, -76, 0)),
    Part.LineSegment(App.Vector(209, -76, 0), App.Vector(209, -67, 0)),
    Part.LineSegment(App.Vector(160, -175, 0), App.Vector(209, -175, 0)),
    Part.LineSegment(App.Vector(209, -175, 0), App.Vector(209, -163, 0)),
    Part.LineSegment(App.Vector(209, -163, 0), App.Vector(163, -163, 0)),
    Part.ArcOfCircle(Part.Circle(App.Vector(-42, -127, 0), App.Vector(0, 0, 1), 207), math.radians(-13.17), math.radians(-9.79)),
], False)
sketch12.addConstraint([
    Sketcher.Constraint("Coincident", 0, 2, 1, 2),
    Sketcher.Constraint("Coincident", 1, 1, 2, 1),
    Sketcher.Constraint("Coincident", 2, 2, 3, 1),
    Sketcher.Constraint("Coincident", 3, 2, 0, 1),
    Sketcher.Constraint("Coincident", 4, 2, 5, 1),
    Sketcher.Constraint("Coincident", 5, 2, 6, 1),
    Sketcher.Constraint("Coincident", 6, 2, 7, 2),
    Sketcher.Constraint("Coincident", 7, 1, 4, 1),
    Sketcher.Constraint("Coincident", 8, 2, 9, 2),
    Sketcher.Constraint("Coincident", 9, 1, 10, 1),
    Sketcher.Constraint("Coincident", 10, 2, 11, 1),
    Sketcher.Constraint("Coincident", 11, 2, 8, 1),
    Sketcher.Constraint("Coincident", 12, 2, 13, 2),
    Sketcher.Constraint("Coincident", 13, 1, 14, 1),
    Sketcher.Constraint("Coincident", 14, 2, 15, 1),
    Sketcher.Constraint("Coincident", 15, 2, 16, 1),
    Sketcher.Constraint("Coincident", 16, 2, 17, 2),
    Sketcher.Constraint("Coincident", 17, 1, 18, 1),
    Sketcher.Constraint("Coincident", 18, 2, 19, 1),
    Sketcher.Constraint("Coincident", 19, 2, 12, 1),
    Sketcher.Constraint("Coincident", 20, 2, 21, 2),
    Sketcher.Constraint("Coincident", 21, 1, 22, 1),
    Sketcher.Constraint("Coincident", 22, 2, 23, 1),
    Sketcher.Constraint("Coincident", 23, 2, 20, 1),
    Sketcher.Constraint("Coincident", 24, 2, 25, 2),
    Sketcher.Constraint("Coincident", 25, 1, 26, 1),
    Sketcher.Constraint("Coincident", 26, 2, 27, 1),
    Sketcher.Constraint("Coincident", 27, 2, 24, 1),
    Sketcher.Constraint("Coincident", 28, 2, 29, 1),
    Sketcher.Constraint("Coincident", 29, 2, 30, 1),
    Sketcher.Constraint("Coincident", 30, 2, 31, 2),
    Sketcher.Constraint("Coincident", 31, 1, 28, 1),
    Sketcher.Constraint("Horizontal", 0),
    Sketcher.Constraint("Horizontal", 2),
    Sketcher.Constraint("Vertical", 3),
    Sketcher.Constraint("Horizontal", 4),
    Sketcher.Constraint("Vertical", 5),
    Sketcher.Constraint("Horizontal", 6),
    Sketcher.Constraint("Vertical", 8),
    Sketcher.Constraint("Vertical", 10),
    Sketcher.Constraint("Vertical", 12),
    Sketcher.Constraint("Vertical", 14),
    Sketcher.Constraint("Horizontal", 15),
    Sketcher.Constraint("Vertical", 16),
    Sketcher.Constraint("Vertical", 18),
    Sketcher.Constraint("Horizontal", 19),
    Sketcher.Constraint("Vertical", 20),
    Sketcher.Constraint("Vertical", 22),
    Sketcher.Constraint("Horizontal", 24),
    Sketcher.Constraint("Horizontal", 26),
    Sketcher.Constraint("Vertical", 27),
    Sketcher.Constraint("Horizontal", 28),
    Sketcher.Constraint("Vertical", 29),
    Sketcher.Constraint("Horizontal", 30),
    Sketcher.Constraint("Coincident", 7, 3, 1, 3),
    Sketcher.Constraint("Coincident", 9, 3, 1, 3),
    Sketcher.Constraint("Coincident", 13, 3, 1, 3),
    Sketcher.Constraint("Coincident", 17, 3, 1, 3),
    Sketcher.Constraint("Coincident", 21, 3, 1, 3),
    Sketcher.Constraint("Coincident", 25, 3, 1, 3),
    Sketcher.Constraint("Coincident", 31, 3, 1, 3),
    Sketcher.Constraint("Equal", 1, 7),
    Sketcher.Constraint("Equal", 7, 9),
    Sketcher.Constraint("Equal", 9, 13),
    Sketcher.Constraint("Equal", 13, 17),
    Sketcher.Constraint("Equal", 17, 21),
    Sketcher.Constraint("Equal", 21, 25),
    Sketcher.Constraint("Equal", 25, 31),
    Sketcher.Constraint("Horizontal", 13, 1, 16, 2),
    Sketcher.Constraint("Horizontal", 12, 2, 17, 1),
    Sketcher.Constraint("Horizontal", 9, 1, 20, 2),
    Sketcher.Constraint("Horizontal", 8, 2, 21, 1),
    Sketcher.Constraint("Horizontal", 11, 2, 22, 2),
    Sketcher.Constraint("Horizontal", 10, 2, 23, 2),
    Sketcher.Constraint("Horizontal", 7, 1, 24, 2),
    Sketcher.Constraint("Horizontal", 3, 2, 28, 2),
    Sketcher.Constraint("Horizontal", 2, 2, 29, 2),
    Sketcher.Constraint("Vertical", 3, 2, 4, 2),
    Sketcher.Constraint("Vertical", 27, 2, 28, 2),
    Sketcher.Constraint("Equal", 4, 24),
    Sketcher.Constraint("DistanceY", 3, 2, 3, 1, 12.0),
    Sketcher.Constraint("DistanceY", 5, 2, 5, 1, 10.0),
    Sketcher.Constraint("Distance", 11, 20.0),
    Sketcher.Constraint("DistanceX", 12, 2, 13, 1, 15.0),
    Sketcher.Constraint("DistanceY", 15, 2, 18, 2, 15.0),
    Sketcher.Constraint("DistanceX", 2, 2, 25, 3, 250.499998),
    Sketcher.Constraint("Radius", 1, 207.367938),
    Sketcher.Constraint("DistanceX", 0, 1, 0, 2, 48.587209),
    Sketcher.Constraint("DistanceX", 6, 1, 6, 2, 49.448959),
    Sketcher.Constraint("DistanceX", 26, 1, 26, 2, 49.619962),
    Sketcher.Constraint("DistanceX", 4, 2, 10, 2, 87.309401),
    Sketcher.Constraint("DistanceY", 17, 3, 15, 2, 243.2877),
    Sketcher.Constraint("DistanceX", 16, 2, 25, 1, 67.714201),
    Sketcher.Constraint("DistanceY", 8, 2, 8, 1, 146.718884),
    Sketcher.Constraint("DistanceY", 10, 1, 10, 2, 124.926934),
    Sketcher.Constraint("DistanceY", 1, 3, -1, 1, 127.449562),
    Sketcher.Constraint("DistanceX", 8, 2, -1, 1, 223.513561),
])
pad7 = body.newObject("PartDesign::Pad", "Pad006")
pad7.Profile = sketch12
pad7.Length = 63.4

doc.recompute()
